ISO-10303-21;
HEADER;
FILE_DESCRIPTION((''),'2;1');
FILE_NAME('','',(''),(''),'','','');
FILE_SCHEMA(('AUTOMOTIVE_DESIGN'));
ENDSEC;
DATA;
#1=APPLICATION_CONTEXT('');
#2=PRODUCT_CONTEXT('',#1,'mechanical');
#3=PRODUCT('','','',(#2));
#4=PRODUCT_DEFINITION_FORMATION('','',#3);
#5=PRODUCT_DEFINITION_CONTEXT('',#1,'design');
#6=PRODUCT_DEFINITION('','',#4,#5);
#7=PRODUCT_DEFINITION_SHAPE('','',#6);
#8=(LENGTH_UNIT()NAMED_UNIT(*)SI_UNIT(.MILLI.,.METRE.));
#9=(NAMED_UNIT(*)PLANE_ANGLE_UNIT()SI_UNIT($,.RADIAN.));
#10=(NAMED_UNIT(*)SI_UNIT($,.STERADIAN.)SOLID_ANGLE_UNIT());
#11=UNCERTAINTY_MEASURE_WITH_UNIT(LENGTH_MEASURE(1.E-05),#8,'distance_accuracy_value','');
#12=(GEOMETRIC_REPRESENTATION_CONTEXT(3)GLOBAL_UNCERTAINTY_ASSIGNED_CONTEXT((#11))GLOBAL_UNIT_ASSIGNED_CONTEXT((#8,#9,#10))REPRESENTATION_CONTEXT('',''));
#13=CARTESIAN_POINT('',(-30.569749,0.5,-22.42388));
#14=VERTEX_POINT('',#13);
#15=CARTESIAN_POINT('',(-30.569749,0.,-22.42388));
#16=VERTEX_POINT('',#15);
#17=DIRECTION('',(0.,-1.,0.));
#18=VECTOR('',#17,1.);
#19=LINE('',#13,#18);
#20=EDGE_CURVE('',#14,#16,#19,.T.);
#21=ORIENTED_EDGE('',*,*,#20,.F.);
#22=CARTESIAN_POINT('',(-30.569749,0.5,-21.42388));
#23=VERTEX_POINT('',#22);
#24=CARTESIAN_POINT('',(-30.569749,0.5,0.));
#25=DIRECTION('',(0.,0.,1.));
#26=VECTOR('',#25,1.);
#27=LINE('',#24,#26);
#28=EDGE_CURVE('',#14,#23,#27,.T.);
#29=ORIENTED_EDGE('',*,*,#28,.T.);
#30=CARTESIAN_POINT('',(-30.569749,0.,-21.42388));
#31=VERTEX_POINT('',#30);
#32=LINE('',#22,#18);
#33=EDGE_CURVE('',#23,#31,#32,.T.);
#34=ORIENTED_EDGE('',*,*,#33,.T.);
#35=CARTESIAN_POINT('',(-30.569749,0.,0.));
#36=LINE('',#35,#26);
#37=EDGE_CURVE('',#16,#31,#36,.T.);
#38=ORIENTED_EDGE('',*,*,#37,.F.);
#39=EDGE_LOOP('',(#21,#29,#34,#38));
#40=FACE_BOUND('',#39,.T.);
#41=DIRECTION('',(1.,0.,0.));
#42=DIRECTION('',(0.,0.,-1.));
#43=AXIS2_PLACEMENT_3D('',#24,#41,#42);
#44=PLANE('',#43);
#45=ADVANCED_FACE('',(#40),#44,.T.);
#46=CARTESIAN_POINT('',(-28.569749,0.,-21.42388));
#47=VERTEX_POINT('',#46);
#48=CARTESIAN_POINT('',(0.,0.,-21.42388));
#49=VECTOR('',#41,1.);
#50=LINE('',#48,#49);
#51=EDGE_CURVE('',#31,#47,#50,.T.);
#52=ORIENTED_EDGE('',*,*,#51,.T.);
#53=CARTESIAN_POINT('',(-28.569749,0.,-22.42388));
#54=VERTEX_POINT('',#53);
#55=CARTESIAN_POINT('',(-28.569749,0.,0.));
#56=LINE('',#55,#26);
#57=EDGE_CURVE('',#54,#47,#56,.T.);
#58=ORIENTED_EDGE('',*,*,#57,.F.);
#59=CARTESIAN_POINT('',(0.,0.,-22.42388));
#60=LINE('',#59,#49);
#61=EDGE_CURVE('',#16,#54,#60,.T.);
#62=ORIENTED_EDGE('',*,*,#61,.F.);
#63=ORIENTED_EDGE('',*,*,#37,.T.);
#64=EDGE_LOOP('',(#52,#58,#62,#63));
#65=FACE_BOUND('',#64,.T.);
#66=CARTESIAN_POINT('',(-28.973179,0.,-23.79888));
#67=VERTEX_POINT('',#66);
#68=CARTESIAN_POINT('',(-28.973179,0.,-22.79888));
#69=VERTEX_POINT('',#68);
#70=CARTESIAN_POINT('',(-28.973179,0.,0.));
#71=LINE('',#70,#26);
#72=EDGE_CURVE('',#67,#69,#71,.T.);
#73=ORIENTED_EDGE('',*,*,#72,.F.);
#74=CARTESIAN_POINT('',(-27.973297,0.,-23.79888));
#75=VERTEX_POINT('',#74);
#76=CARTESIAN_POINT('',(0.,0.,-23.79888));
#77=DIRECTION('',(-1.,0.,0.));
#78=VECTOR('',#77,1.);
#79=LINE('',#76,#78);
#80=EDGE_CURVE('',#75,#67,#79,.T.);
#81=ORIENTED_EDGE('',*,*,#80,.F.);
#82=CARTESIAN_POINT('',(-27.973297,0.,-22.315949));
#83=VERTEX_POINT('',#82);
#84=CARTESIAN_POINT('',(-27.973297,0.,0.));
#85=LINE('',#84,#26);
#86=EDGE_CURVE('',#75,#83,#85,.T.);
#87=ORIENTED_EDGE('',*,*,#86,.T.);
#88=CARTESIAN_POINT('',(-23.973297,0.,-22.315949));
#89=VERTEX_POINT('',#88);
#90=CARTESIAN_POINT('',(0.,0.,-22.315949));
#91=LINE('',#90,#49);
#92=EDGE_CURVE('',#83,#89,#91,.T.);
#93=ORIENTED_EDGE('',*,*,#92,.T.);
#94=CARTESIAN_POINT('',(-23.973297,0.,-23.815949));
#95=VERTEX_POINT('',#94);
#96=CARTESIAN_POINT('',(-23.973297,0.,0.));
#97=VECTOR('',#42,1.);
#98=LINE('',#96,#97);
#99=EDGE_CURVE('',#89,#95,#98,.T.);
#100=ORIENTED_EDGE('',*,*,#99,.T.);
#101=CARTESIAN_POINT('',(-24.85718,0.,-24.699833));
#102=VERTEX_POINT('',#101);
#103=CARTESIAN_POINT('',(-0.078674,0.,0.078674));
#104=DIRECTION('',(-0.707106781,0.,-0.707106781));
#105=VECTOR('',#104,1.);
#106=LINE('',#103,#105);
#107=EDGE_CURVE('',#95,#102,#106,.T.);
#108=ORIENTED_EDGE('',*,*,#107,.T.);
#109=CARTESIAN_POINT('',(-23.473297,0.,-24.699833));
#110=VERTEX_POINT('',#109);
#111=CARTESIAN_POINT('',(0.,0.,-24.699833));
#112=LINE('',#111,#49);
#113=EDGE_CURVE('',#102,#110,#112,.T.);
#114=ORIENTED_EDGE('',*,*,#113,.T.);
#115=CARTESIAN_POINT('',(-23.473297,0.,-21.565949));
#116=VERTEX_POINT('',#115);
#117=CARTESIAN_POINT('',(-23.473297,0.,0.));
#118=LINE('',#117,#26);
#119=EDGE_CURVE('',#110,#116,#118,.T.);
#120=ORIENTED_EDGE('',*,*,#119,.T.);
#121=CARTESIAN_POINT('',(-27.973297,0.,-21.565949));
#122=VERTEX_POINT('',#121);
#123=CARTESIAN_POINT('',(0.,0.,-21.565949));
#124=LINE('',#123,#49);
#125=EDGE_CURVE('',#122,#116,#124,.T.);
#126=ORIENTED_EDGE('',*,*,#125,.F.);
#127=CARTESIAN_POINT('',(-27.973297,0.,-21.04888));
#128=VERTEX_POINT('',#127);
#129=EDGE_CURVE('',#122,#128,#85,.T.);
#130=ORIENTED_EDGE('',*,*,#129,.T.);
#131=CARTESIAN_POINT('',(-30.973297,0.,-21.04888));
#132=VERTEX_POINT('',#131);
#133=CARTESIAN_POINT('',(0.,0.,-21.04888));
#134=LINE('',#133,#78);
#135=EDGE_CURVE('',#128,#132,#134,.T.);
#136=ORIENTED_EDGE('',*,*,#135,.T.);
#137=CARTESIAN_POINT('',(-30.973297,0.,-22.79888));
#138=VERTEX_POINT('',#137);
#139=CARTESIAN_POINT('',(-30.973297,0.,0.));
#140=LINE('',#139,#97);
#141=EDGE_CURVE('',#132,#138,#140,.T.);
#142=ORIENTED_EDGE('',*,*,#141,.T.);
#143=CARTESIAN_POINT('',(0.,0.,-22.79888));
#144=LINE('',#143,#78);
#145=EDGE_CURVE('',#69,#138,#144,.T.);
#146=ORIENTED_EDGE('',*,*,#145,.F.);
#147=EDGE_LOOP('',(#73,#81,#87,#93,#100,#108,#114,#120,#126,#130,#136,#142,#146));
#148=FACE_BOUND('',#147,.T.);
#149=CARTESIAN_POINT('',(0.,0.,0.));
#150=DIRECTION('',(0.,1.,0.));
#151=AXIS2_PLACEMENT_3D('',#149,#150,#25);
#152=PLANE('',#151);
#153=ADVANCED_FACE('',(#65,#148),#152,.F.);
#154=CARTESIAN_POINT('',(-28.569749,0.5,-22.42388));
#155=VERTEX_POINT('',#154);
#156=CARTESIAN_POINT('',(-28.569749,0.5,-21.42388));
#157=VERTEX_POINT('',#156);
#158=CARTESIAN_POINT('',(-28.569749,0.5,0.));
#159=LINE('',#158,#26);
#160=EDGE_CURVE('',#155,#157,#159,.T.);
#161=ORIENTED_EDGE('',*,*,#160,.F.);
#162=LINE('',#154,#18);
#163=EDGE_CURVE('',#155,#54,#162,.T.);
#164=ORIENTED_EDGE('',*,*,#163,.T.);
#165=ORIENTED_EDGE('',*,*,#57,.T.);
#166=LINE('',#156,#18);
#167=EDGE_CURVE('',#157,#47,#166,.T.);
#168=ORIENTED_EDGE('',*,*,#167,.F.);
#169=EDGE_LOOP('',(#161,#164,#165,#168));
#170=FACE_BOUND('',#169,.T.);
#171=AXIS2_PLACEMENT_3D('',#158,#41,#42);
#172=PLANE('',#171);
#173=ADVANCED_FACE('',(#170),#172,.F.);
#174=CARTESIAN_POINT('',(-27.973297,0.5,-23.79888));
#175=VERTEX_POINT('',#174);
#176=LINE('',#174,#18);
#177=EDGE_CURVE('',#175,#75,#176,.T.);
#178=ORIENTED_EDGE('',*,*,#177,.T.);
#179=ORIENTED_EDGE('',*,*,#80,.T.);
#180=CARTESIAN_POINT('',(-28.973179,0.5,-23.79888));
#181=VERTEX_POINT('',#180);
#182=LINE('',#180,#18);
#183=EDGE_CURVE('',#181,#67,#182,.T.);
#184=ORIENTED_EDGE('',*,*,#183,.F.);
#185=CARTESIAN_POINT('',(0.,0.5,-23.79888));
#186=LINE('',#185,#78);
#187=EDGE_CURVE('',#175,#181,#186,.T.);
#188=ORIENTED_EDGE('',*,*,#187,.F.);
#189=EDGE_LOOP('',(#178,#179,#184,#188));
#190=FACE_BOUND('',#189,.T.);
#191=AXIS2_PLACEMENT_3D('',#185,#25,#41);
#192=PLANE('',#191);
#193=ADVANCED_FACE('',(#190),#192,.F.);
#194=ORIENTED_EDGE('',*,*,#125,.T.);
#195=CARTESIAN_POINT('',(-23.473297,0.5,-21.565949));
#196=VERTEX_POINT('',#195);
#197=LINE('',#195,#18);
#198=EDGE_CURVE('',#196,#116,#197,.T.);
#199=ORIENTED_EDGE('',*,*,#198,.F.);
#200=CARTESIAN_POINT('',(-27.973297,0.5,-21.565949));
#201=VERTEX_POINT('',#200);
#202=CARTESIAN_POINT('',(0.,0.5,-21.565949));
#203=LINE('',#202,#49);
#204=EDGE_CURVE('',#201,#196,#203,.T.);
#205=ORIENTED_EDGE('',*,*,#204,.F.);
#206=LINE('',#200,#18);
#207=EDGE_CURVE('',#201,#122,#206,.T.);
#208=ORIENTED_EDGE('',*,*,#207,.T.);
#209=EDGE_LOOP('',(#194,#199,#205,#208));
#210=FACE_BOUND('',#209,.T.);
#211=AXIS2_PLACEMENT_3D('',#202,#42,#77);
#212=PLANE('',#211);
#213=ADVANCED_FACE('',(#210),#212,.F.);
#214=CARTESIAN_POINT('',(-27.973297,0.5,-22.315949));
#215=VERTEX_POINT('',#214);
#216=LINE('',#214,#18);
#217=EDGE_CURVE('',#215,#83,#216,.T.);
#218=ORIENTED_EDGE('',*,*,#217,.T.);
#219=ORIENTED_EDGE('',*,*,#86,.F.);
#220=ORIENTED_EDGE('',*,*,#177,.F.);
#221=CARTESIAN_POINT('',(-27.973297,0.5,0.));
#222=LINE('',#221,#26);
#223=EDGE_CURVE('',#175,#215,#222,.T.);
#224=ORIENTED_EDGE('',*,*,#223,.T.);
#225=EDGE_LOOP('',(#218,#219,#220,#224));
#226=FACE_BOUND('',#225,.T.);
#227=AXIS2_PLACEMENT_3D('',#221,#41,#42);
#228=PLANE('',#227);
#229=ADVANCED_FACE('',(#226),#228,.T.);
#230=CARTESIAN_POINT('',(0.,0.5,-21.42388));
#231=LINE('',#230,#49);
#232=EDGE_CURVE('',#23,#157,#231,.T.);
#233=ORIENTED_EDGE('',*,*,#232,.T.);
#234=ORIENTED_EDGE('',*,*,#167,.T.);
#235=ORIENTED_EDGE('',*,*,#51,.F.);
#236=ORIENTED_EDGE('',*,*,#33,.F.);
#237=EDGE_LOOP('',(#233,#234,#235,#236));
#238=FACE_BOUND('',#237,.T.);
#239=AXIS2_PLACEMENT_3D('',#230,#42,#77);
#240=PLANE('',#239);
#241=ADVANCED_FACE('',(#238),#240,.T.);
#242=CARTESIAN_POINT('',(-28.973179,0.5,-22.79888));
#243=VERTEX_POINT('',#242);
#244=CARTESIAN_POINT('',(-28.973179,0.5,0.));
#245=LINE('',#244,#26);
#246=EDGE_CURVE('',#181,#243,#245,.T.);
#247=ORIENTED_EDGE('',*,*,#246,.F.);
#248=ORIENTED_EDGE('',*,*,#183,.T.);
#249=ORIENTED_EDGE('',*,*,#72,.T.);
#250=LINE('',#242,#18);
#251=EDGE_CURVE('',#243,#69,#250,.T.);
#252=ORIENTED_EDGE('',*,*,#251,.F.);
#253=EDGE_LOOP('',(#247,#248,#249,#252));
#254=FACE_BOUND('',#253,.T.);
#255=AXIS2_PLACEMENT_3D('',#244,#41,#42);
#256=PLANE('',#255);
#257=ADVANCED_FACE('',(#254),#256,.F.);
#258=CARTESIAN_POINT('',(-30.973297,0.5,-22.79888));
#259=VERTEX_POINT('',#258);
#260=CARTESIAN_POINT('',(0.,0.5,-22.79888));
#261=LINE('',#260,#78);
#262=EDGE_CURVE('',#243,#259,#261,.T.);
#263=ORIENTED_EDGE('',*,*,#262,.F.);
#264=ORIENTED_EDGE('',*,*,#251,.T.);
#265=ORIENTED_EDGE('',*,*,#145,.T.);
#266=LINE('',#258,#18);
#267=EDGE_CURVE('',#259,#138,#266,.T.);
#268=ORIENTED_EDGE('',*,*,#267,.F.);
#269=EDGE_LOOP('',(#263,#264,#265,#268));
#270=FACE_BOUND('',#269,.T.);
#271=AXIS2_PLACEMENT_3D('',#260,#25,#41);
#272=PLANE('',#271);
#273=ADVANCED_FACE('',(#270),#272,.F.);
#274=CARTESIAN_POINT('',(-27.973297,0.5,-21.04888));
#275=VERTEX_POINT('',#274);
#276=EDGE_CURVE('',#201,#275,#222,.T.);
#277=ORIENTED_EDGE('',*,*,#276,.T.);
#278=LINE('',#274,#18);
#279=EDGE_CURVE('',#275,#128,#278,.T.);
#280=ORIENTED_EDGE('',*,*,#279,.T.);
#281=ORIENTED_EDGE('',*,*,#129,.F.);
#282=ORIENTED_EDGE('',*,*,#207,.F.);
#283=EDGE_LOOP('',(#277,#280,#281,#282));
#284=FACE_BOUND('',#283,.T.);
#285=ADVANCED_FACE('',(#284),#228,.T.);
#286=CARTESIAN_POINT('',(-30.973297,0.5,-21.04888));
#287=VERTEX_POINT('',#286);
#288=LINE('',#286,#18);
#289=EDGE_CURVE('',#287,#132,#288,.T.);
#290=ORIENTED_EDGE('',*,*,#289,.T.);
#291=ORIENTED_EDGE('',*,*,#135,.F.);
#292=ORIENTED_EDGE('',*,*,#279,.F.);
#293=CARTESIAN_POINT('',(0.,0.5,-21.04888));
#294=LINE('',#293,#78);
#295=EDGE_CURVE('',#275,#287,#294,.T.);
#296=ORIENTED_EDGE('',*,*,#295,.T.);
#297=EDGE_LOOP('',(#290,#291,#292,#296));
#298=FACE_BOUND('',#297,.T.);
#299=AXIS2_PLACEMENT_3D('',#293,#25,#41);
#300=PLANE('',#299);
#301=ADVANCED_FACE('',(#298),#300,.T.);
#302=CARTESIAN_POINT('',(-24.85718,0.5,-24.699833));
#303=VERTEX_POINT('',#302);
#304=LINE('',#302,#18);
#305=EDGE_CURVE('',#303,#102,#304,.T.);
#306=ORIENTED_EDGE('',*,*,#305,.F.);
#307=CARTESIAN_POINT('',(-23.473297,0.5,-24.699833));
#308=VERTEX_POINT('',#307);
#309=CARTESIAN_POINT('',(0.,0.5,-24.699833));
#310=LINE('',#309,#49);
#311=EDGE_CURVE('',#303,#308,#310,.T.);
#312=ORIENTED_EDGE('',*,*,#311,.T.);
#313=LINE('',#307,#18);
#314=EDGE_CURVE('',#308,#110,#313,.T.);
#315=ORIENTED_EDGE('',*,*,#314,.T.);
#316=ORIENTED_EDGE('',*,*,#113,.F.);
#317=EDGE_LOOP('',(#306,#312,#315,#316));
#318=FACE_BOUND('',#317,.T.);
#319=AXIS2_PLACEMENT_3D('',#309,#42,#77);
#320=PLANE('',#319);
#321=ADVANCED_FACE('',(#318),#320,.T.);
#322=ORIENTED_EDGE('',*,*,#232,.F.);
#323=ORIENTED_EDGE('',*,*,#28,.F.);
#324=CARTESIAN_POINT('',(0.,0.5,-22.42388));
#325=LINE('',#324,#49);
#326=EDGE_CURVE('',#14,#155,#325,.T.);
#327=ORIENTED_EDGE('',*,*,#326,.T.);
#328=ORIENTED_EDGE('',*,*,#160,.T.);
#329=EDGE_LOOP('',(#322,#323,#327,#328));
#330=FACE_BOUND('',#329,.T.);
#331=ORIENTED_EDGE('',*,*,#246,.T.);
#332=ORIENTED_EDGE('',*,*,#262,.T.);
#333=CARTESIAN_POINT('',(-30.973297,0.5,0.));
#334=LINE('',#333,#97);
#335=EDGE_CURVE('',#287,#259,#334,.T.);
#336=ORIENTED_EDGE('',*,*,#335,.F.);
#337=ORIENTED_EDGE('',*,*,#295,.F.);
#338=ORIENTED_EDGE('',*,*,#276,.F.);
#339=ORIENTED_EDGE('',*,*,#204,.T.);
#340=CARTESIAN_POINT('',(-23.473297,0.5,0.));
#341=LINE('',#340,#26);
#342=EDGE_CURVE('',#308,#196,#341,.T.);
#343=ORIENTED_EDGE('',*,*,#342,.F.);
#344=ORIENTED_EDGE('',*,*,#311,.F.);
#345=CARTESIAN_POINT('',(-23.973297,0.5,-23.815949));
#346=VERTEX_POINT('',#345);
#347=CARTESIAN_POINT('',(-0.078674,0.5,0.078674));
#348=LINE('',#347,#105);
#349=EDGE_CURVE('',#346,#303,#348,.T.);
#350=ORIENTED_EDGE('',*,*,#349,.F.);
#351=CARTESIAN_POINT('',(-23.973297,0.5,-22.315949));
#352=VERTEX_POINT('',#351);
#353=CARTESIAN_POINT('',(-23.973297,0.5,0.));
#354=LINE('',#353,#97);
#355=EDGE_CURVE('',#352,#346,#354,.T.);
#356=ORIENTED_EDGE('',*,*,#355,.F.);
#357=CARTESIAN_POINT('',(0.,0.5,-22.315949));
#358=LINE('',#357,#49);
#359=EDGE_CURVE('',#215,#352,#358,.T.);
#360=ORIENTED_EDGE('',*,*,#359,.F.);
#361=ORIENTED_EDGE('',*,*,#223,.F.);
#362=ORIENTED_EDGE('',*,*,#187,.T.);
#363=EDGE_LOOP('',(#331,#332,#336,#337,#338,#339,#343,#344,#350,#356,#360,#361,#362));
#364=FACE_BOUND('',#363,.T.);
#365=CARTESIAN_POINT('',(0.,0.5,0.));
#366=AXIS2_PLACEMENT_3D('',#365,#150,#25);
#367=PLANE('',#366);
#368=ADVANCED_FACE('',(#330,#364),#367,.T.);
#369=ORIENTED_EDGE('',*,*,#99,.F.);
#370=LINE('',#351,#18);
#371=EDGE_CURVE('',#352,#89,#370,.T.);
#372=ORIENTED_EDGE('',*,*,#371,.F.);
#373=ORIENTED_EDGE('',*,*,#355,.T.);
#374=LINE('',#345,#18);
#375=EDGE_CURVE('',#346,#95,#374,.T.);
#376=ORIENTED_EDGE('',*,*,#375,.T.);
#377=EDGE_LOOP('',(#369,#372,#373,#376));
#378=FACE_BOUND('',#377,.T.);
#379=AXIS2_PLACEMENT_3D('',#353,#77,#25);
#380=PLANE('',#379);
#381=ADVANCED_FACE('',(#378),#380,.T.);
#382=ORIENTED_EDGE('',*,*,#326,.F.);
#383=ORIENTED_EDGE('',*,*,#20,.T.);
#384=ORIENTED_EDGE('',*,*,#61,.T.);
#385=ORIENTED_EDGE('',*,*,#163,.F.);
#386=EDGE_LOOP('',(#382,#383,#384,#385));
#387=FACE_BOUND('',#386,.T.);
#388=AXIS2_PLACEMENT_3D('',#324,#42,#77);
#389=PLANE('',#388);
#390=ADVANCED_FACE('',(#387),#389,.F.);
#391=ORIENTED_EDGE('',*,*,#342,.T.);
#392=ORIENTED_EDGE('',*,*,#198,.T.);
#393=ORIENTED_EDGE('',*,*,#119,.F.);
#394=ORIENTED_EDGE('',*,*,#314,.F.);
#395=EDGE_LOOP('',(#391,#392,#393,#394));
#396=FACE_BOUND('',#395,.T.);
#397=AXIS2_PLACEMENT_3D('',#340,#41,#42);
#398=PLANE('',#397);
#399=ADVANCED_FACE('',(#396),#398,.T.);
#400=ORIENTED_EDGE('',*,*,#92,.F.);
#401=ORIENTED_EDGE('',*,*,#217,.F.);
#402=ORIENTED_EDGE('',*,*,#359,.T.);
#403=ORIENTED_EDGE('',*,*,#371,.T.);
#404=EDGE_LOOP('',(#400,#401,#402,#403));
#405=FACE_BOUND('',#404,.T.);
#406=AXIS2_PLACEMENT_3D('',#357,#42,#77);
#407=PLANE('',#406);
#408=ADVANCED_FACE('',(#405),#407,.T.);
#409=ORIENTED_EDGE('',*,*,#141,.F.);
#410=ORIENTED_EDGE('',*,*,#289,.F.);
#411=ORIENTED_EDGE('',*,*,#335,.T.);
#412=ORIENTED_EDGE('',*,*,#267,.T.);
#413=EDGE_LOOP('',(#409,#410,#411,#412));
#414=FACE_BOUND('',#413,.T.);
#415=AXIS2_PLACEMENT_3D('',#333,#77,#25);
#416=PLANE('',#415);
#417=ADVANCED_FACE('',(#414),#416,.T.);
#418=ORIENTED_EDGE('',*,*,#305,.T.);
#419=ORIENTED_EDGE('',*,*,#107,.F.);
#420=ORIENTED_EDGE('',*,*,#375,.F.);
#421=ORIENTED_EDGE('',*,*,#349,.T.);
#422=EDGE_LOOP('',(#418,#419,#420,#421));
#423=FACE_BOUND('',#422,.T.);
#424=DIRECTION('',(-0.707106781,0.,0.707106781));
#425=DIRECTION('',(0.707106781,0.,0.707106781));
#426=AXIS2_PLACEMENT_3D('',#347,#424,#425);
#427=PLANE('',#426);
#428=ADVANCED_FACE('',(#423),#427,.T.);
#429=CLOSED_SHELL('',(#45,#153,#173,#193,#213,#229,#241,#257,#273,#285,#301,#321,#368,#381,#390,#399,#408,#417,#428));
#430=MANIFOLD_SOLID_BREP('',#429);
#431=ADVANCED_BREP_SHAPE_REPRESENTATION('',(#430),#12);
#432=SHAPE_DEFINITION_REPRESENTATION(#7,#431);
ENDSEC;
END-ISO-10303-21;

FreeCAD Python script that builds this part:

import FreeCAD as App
import Part
import Sketcher
Q = App.Units.Quantity

doc = App.newDocument("Part")
params = doc.addObject("Spreadsheet::Sheet", "Params")
for row, (alias, value) in enumerate([
    ("sketch1_width", "4 mm"),
    ("sketch1_width2", "3 mm"),
    ("sketch1_width3", "2 mm"),
    ("sketch1_height", "1 mm"),
    ("sketch1_width4", "4.5 mm"),
    ("pad1_length", "0.5 mm"),
], start=1):
    params.set(f"A{row}", alias)
    params.set(f"B{row}", "=" + value)
    params.setAlias(f"B{row}", alias)

body = doc.addObject("PartDesign::Body", "Body")

# Sketch on XZ plane
sketch1 = body.newObject("Sketcher::SketchObject", "Sketch")
sketch1.AttachmentSupport = (doc.getObject("XZ_Plane"), [""])
sketch1.MapMode = "FlatFace"
sketch1.addGeometry([
    Part.LineSegment(App.Vector(-23.973297, -22.315949, 0), App.Vector(-27.973297, -22.315949, 0)),  # 0
    Part.LineSegment(App.Vector(-27.973297, -22.315949, 0), App.Vector(-27.973297, -23.79888, 0)),  # 1
    Part.LineSegment(App.Vector(-27.973297, -23.79888, 0), App.Vector(-28.973179, -23.79888, 0)),  # 2
    Part.LineSegment(App.Vector(-28.973179, -23.79888, 0), App.Vector(-28.973179, -22.79888, 0)),  # 3
    Part.LineSegment(App.Vector(-28.973179, -22.79888, 0), App.Vector(-30.973297, -22.79888, 0)),  # 4
    Part.LineSegment(App.Vector(-30.973297, -22.79888, 0), App.Vector(-30.973297, -21.04888, 0)),  # 5
    Part.LineSegment(App.Vector(-30.973297, -21.04888, 0), App.Vector(-27.973297, -21.04888, 0)),  # 6
    Part.LineSegment(App.Vector(-27.973297, -21.04888, 0), App.Vector(-27.973297, -21.565949, 0)),  # 7
    Part.LineSegment(App.Vector(-27.973297, -21.565949, 0), App.Vector(-23.473297, -21.565949, 0)),  # 8
    Part.LineSegment(App.Vector(-23.473297, -21.565949, 0), App.Vector(-23.473297, -24.699833, 0)),  # 9
    Part.LineSegment(App.Vector(-23.473297, -24.699833, 0), App.Vector(-24.85718, -24.699833, 0)),  # 10
    Part.LineSegment(App.Vector(-24.85718, -24.699833, 0), App.Vector(-23.973297, -23.815949, 0)),  # 11
    Part.LineSegment(App.Vector(-23.973297, -23.815949, 0), App.Vector(-23.973297, -22.315949, 0)),  # 12
    Part.LineSegment(App.Vector(-28.569749, -21.42388, 0), App.Vector(-30.569749, -21.42388, 0)),  # 13
    Part.LineSegment(App.Vector(-30.569749, -21.42388, 0), App.Vector(-30.569749, -22.42388, 0)),  # 14
    Part.LineSegment(App.Vector(-30.569749, -22.42388, 0), App.Vector(-28.569749, -22.42388, 0)),  # 15
    Part.LineSegment(App.Vector(-28.569749, -22.42388, 0), App.Vector(-28.569749, -21.42388, 0)),  # 16
], False)
sketch1.addConstraint([
    Sketcher.Constraint("Coincident", 0, 2, 1, 1),
    Sketcher.Constraint("Coincident", 1, 2, 2, 1),
    Sketcher.Constraint("Coincident", 2, 2, 3, 1),
    Sketcher.Constraint("Coincident", 3, 2, 4, 1),
    Sketcher.Constraint("Coincident", 4, 2, 5, 1),
    Sketcher.Constraint("Coincident", 5, 2, 6, 1),
    Sketcher.Constraint("Coincident", 6, 2, 7, 1),
    Sketcher.Constraint("Coincident", 7, 2, 8, 1),
    Sketcher.Constraint("Coincident", 8, 2, 9, 1),
    Sketcher.Constraint("Coincident", 9, 2, 10, 1),
    Sketcher.Constraint("Coincident", 10, 2, 11, 1),
    Sketcher.Constraint("Coincident", 11, 2, 12, 1),
    Sketcher.Constraint("Coincident", 12, 2, 0, 1),
    Sketcher.Constraint("Coincident", 13, 2, 14, 1),
    Sketcher.Constraint("Coincident", 14, 2, 15, 1),
    Sketcher.Constraint("Coincident", 15, 2, 16, 1),
    Sketcher.Constraint("Coincident", 16, 2, 13, 1),
    Sketcher.Constraint("Horizontal", 0),
    Sketcher.Constraint("Vertical", 1),
    Sketcher.Constraint("Horizontal", 2),
    Sketcher.Constraint("Vertical", 3),
    Sketcher.Constraint("Horizontal", 4),
    Sketcher.Constraint("Vertical", 5),
    Sketcher.Constraint("Horizontal", 6),
    Sketcher.Constraint("Vertical", 7),
    Sketcher.Constraint("Horizontal", 8),
    Sketcher.Constraint("Vertical", 9),
    Sketcher.Constraint("Horizontal", 10),
    Sketcher.Constraint("Vertical", 12),
    Sketcher.Constraint("Horizontal", 13),
    Sketcher.Constraint("Vertical", 14),
    Sketcher.Constraint("Horizontal", 15),
    Sketcher.Constraint("Vertical", 16),
    Sketcher.Constraint("Vertical", 1, 2, 6, 2),
    Sketcher.Constraint("Equal", 3, 14),
    Sketcher.Constraint("DistanceX", 0, 2, 0, 1, Q("4 mm")),
    Sketcher.Constraint("DistanceX", 6, 1, 6, 2, Q("3 mm")),
    Sketcher.Constraint("DistanceX", 13, 2, 13, 1, Q("2 mm")),
    Sketcher.Constraint("DistanceY", 3, 1, 3, 2, Q("1 mm")),
    Sketcher.Constraint("Angle", 11, Q("45 deg")),
    Sketcher.Constraint("DistanceX", 8, 1, 8, 2, Q("4.5 mm")),
    Sketcher.Constraint("DistanceY", 12, 1, 12, 2, Q("1.5 mm")),
    Sketcher.Constraint("DistanceY", 5, 1, 5, 2, Q("1.75 mm")),
    Sketcher.Constraint("Distance", 11, Q("1.25 mm")),
    Sketcher.Constraint("DistanceY", 0, 2, 7, 2, Q("0.75 mm")),
    Sketcher.Constraint("DistanceX", 2, 2, 10, 2, Q("4.115999 mm")),
    Sketcher.Constraint("DistanceY", 13, 2, 5, 2, Q("0.375 mm")),
    Sketcher.Constraint("DistanceY", 1, 2, 1, 1, Q("1.482931 mm")),
    Sketcher.Constraint("DistanceY", 0, 2, -1, 1, Q("22.315949 mm")),
    Sketcher.Constraint("DistanceX", 2, 2, -1, 1, Q("28.973179 mm")),
    Sketcher.Constraint("DistanceX", 13, 2, -1, 1, Q("30.569749 mm")),
])
sketch1.setExpression("Constraints[35]", "Params.sketch1_width")
sketch1.setExpression("Constraints[36]", "Params.sketch1_width2")
sketch1.setExpression("Constraints[37]", "Params.sketch1_width3")
sketch1.setExpression("Constraints[38]", "Params.sketch1_height")
sketch1.setExpression("Constraints[40]", "Params.sketch1_width4")
pad1 = body.newObject("PartDesign::Pad", "Pad")
pad1.Profile = sketch1
pad1.setExpression("Length", "Params.pad1_length")
pad1.Reversed = True

doc.recompute()
